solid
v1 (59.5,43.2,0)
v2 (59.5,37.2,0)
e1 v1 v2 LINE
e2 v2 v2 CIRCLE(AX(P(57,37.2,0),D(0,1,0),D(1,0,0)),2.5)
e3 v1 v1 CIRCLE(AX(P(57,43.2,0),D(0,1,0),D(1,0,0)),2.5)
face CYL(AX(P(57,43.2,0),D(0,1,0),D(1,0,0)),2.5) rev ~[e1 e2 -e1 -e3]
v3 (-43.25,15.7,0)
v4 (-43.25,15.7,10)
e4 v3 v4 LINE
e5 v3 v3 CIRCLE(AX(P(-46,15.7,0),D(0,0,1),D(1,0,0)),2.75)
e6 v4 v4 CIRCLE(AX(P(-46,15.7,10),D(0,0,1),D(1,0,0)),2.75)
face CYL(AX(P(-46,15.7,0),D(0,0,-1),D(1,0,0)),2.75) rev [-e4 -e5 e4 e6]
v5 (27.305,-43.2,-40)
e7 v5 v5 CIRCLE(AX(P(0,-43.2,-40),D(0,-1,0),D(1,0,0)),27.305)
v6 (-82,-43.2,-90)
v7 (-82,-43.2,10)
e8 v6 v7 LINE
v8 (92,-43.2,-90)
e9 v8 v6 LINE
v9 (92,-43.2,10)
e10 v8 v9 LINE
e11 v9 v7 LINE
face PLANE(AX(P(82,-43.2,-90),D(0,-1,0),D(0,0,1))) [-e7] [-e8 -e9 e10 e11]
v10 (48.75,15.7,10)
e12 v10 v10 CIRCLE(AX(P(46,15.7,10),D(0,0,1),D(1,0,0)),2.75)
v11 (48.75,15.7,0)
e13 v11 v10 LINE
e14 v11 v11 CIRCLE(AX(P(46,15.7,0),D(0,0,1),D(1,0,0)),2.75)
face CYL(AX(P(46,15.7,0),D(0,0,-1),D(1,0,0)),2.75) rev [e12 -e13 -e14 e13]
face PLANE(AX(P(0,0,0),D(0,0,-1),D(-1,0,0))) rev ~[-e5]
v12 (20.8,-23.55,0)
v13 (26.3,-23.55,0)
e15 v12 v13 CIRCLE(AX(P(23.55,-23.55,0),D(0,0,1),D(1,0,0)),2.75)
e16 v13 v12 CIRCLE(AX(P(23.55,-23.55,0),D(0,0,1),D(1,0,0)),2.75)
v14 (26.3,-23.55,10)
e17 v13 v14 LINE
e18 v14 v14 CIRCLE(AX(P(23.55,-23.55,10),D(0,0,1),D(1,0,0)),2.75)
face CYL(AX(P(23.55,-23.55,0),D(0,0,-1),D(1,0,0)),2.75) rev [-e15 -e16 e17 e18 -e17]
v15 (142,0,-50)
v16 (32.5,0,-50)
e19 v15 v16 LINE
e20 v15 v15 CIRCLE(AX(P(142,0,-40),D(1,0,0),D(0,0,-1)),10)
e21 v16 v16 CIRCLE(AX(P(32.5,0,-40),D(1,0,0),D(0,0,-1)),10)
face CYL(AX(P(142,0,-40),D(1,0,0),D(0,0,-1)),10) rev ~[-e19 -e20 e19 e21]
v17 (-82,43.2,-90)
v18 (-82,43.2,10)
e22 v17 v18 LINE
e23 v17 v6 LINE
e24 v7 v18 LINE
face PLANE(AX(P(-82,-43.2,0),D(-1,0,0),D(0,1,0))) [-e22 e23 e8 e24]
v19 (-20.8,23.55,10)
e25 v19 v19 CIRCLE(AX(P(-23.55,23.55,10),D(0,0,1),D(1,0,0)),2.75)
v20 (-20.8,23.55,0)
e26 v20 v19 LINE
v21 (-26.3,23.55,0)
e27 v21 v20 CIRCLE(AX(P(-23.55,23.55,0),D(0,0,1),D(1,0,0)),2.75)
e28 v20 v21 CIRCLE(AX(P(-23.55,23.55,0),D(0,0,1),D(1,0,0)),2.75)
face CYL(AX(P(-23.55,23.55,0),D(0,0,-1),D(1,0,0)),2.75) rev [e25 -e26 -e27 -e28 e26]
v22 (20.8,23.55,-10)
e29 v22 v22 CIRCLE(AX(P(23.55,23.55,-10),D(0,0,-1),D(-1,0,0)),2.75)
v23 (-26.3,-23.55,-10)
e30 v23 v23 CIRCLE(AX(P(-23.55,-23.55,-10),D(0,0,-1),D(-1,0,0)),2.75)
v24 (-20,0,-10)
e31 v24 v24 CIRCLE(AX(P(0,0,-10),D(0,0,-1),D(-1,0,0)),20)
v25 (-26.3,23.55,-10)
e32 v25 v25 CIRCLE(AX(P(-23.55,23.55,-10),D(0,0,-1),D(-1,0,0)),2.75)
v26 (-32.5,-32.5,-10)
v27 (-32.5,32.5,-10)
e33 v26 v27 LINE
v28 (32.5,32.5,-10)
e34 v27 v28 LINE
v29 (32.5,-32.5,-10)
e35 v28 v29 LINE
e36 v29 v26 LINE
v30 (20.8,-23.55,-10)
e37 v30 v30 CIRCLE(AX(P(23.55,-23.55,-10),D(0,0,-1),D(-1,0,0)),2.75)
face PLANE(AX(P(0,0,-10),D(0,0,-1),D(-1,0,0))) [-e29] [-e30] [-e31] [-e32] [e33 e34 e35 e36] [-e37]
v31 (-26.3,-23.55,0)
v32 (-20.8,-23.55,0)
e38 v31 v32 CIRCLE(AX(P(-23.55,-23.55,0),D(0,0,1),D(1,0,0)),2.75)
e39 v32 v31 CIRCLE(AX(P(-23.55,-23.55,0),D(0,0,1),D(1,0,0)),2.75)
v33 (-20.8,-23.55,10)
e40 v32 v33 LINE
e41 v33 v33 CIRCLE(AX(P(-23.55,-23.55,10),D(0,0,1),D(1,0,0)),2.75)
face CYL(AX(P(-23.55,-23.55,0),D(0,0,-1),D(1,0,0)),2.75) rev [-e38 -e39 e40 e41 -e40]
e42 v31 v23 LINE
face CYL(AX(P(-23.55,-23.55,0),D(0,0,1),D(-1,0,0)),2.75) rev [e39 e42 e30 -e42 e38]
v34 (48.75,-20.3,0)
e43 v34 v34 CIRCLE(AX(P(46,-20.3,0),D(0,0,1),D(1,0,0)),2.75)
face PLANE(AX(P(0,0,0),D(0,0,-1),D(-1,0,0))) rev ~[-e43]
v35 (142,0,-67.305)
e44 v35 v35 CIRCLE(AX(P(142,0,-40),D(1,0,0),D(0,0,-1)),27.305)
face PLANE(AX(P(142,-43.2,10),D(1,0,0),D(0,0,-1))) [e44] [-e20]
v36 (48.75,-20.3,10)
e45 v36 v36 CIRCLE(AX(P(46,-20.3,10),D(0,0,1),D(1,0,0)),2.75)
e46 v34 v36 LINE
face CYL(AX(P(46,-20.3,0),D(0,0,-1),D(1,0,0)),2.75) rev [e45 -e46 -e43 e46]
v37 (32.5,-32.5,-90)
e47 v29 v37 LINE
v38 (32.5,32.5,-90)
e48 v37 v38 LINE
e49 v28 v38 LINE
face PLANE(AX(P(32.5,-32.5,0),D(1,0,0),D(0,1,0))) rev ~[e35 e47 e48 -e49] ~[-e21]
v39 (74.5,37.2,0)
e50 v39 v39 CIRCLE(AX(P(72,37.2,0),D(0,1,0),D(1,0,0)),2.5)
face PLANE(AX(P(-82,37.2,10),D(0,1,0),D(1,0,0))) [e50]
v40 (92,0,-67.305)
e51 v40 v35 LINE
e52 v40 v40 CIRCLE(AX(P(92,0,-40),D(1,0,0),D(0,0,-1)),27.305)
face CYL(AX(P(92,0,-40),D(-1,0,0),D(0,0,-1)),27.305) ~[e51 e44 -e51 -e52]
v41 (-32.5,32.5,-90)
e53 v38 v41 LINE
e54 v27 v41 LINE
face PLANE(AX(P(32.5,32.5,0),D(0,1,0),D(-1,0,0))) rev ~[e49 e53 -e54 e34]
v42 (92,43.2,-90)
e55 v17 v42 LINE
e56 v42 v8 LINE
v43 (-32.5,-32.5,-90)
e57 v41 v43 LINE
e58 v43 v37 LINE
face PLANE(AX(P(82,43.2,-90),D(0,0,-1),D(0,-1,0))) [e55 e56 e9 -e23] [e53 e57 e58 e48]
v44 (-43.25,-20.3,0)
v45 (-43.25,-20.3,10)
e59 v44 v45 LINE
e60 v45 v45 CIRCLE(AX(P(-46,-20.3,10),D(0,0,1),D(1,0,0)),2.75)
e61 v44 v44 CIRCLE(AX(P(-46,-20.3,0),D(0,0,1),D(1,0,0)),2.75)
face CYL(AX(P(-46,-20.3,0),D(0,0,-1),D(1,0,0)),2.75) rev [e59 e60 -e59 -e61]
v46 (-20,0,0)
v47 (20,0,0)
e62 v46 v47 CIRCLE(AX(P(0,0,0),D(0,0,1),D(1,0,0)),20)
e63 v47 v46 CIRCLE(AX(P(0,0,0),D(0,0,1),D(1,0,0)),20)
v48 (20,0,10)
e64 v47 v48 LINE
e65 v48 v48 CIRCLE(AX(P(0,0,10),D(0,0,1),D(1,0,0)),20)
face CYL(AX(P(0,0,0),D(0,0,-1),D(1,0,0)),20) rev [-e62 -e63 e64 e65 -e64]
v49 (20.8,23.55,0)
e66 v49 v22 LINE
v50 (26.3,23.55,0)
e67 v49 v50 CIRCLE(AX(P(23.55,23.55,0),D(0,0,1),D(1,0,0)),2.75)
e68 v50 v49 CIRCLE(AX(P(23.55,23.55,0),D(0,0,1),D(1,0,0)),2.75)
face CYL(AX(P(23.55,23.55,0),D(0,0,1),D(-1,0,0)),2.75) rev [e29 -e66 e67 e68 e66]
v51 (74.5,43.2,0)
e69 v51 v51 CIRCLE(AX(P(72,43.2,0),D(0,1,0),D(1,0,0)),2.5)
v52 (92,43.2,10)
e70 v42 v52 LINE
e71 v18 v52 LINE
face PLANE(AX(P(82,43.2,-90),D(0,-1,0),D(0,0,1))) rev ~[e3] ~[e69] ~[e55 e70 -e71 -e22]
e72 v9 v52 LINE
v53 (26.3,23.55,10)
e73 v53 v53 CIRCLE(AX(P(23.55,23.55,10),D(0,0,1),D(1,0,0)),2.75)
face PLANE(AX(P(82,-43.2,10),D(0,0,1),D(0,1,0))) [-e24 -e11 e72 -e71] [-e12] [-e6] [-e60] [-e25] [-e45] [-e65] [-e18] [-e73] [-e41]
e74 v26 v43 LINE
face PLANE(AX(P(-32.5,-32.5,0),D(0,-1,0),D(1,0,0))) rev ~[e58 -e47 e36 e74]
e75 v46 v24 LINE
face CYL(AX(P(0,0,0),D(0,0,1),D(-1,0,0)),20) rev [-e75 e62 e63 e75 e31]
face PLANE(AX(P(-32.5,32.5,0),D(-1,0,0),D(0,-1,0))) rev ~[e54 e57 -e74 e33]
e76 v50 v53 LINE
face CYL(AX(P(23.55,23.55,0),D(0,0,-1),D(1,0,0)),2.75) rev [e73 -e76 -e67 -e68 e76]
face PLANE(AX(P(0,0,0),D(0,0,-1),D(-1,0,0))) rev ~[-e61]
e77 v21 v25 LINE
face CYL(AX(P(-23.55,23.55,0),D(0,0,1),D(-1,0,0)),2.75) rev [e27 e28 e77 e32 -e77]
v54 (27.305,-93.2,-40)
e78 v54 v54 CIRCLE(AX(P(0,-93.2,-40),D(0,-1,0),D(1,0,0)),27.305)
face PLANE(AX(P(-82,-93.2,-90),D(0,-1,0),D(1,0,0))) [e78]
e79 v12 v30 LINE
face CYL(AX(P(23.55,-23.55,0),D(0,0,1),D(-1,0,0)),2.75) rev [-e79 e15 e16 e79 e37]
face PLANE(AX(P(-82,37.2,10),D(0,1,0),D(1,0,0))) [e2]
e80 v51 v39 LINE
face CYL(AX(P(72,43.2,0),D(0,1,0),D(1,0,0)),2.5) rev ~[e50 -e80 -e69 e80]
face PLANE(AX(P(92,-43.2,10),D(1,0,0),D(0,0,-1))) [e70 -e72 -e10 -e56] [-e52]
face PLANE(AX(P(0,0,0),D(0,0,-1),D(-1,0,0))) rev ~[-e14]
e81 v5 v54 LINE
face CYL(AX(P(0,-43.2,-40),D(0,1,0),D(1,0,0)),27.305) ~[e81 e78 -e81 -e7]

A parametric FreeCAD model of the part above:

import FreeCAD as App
import Part
import Sketcher
from FreeCAD import Vector


def add_polygon(sketch, points):
    """Adds a closed chain of lines whose ends are joined by coincident constraints."""
    first, n = sketch.GeometryCount, len(points)
    for a, b in zip(points, points[1:] + points[:1]):
        sketch.addGeometry(Part.LineSegment(App.Vector(*a, 0), App.Vector(*b, 0)), False)
    for i in range(n):
        sketch.addConstraint(Sketcher.Constraint("Coincident", first + i, 2, first + (i + 1) % n, 1))

doc = App.newDocument("Part")
body = doc.addObject("PartDesign::Body", "Body")

sketch1 = body.newObject("Sketcher::SketchObject", "Sketch")
sketch1.AttachmentSupport = (doc.getObject("XY_Plane"), [""])
sketch1.MapMode = "FlatFace"
add_polygon(sketch1, [(82, 43.2), (-82, 43.2), (-82, -43.2), (82, -43.2)])
sketch1.addGeometry(Part.Circle(Vector(-23.6, -23.6, 0), Vector(0, 0, 1), 2.8), False)
sketch1.addGeometry(Part.Circle(Vector(-46, -20.3, 0), Vector(0, 0, 1), 2.8), False)
sketch1.addGeometry(Part.Circle(Vector(23.6, -23.6, 0), Vector(0, 0, 1), 2.8), False)
sketch1.addGeometry(Part.Circle(Vector(46, -20.3, 0), Vector(0, 0, 1), 2.8), False)
sketch1.addGeometry(Part.Circle(Vector(-46, 15.7, 0), Vector(0, 0, 1), 2.8), False)
sketch1.addGeometry(Part.Circle(Vector(-23.6, 23.6, 0), Vector(0, 0, 1), 2.8), False)
sketch1.addGeometry(Part.Circle(Vector(0, 0, 0), Vector(0, 0, 1), 20), False)
sketch1.addGeometry(Part.Circle(Vector(46, 15.7, 0), Vector(0, 0, 1), 2.8), False)
sketch1.addGeometry(Part.Circle(Vector(23.6, 23.6, 0), Vector(0, 0, 1), 2.8), False)
sketch1.addConstraint(Sketcher.Constraint("Horizontal", 0))
sketch1.addConstraint(Sketcher.Constraint("Vertical", 1))
sketch1.addConstraint(Sketcher.Constraint("Horizontal", 2))
sketch1.addConstraint(Sketcher.Constraint("Vertical", 3))
sketch1.addConstraint(Sketcher.Constraint("Coincident", 10, 3, -1, 1))
sketch1.addConstraint(Sketcher.Constraint("Equal", 4, 5))
sketch1.addConstraint(Sketcher.Constraint("Equal", 5, 6))
sketch1.addConstraint(Sketcher.Constraint("Equal", 6, 7))
sketch1.addConstraint(Sketcher.Constraint("Equal", 7, 8))
sketch1.addConstraint(Sketcher.Constraint("Equal", 8, 9))
sketch1.addConstraint(Sketcher.Constraint("Equal", 9, 11))
sketch1.addConstraint(Sketcher.Constraint("Equal", 11, 12))
sketch1.addConstraint(Sketcher.Constraint("Symmetric", 6, 3, 9, 3, -1, 1))
sketch1.addConstraint(Sketcher.Constraint("Symmetric", 4, 3, 12, 3, -1, 1))
sketch1.addConstraint(Sketcher.Constraint("Symmetric", 0, 2, 2, 2, -1, 1))
sketch1.addConstraint(Sketcher.Constraint("Symmetric", 4, 3, 6, 3, -2))
sketch1.addConstraint(Sketcher.Constraint("Symmetric", 5, 3, 7, 3, -2))
sketch1.addConstraint(Sketcher.Constraint("Symmetric", 8, 3, 11, 3, -2))
sketch1.addConstraint(Sketcher.Constraint("Vertical", 5, 3, 8, 3))
sketch1.addConstraint(Sketcher.Constraint("Diameter", 10, 40.0))
sketch1.addConstraint(Sketcher.Constraint("Diameter", 4, 5.5))
sketch1.addConstraint(Sketcher.Constraint("DistanceX", 5, 3, -1, 1, 46.0))
sketch1.addConstraint(Sketcher.Constraint("DistanceY", 5, 3, 8, 3, 36.0))
sketch1.addConstraint(Sketcher.Constraint("DistanceX", 0, 2, 8, 3, 36.0))
sketch1.addConstraint(Sketcher.Constraint("DistanceX", 4, 3, 6, 3, 47.1))
sketch1.addConstraint(Sketcher.Constraint("DistanceY", 4, 3, 9, 3, 47.1))
sketch1.addConstraint(Sketcher.Constraint("DistanceY", 1, 2, 1, 1, 86.4))
sketch1.addConstraint(Sketcher.Constraint("DistanceY", 5, 3, -1, 1, 20.3))
pad1 = body.newObject("PartDesign::Pad", "Pad")
pad1.Profile = sketch1
pad1.Length = 10

sketch2 = body.newObject("Sketcher::SketchObject", "Sketch001")
sketch2.AttachmentSupport = (doc.getObject("XY_Plane"), [""])
sketch2.MapMode = "FlatFace"
add_polygon(sketch2, [(82, 43), (82, -43), (-82, -43), (-82, 43)])
add_polygon(sketch2, [(-32, 32), (-32, -32), (32, -32), (32, 32)])
sketch2.addConstraint(Sketcher.Constraint("Vertical", 0))
sketch2.addConstraint(Sketcher.Constraint("Horizontal", 1))
sketch2.addConstraint(Sketcher.Constraint("Vertical", 2))
sketch2.addConstraint(Sketcher.Constraint("Horizontal", 3))
sketch2.addConstraint(Sketcher.Constraint("Vertical", 4))
sketch2.addConstraint(Sketcher.Constraint("Horizontal", 5))
sketch2.addConstraint(Sketcher.Constraint("Vertical", 6))
sketch2.addConstraint(Sketcher.Constraint("Horizontal", 7))
sketch2.addConstraint(Sketcher.Constraint("Symmetric", 0, 2, 2, 2, -1, 1))
sketch2.addConstraint(Sketcher.Constraint("Symmetric", 4, 2, 6, 2, -1, 1))
sketch2.addConstraint(Sketcher.Constraint("Equal", 7, 4))
sketch2.addConstraint(Sketcher.Constraint("DistanceX", 5, 1, 5, 2, 65.0))
sketch2.addConstraint(Sketcher.Constraint("DistanceX", 1, 2, 1, 1, 164.0))
sketch2.addConstraint(Sketcher.Constraint("DistanceY", 0, 2, 0, 1, 86.4))
pad2 = body.newObject("PartDesign::Pad", "Pad001")
pad2.Profile = sketch2
pad2.Length = 90
pad2.Reversed = True

sketch3 = body.newObject("Sketcher::SketchObject", "Sketch002")
sketch3.AttachmentSupport = (doc.getObject("XY_Plane"), [""])
sketch3.MapMode = "FlatFace"
add_polygon(sketch3, [(32.5, -32.5), (-32.5, -32.5), (-32.5, 32.5), (32.5, 32.5)])
sketch3.addGeometry(Part.Circle(Vector(23.6, -23.6, 0), Vector(0, 0, 1), 2.8), False)
sketch3.addGeometry(Part.Circle(Vector(-23.6, -23.6, 0), Vector(0, 0, 1), 2.8), False)
sketch3.addGeometry(Part.Circle(Vector(23.6, 23.6, 0), Vector(0, 0, 1), 2.8), False)
sketch3.addGeometry(Part.Circle(Vector(0, 0, 0), Vector(0, 0, 1), 20), False)
sketch3.addGeometry(Part.Circle(Vector(-23.6, 23.6, 0), Vector(0, 0, 1), 2.8), False)
sketch3.addConstraint(Sketcher.Constraint("Horizontal", 0))
sketch3.addConstraint(Sketcher.Constraint("Vertical", 1))
sketch3.addConstraint(Sketcher.Constraint("Horizontal", 2))
sketch3.addConstraint(Sketcher.Constraint("Vertical", 3))
sketch3.addConstraint(Sketcher.Constraint("Coincident", 7, 3, -1, 1))
sketch3.addConstraint(Sketcher.Constraint("Equal", 4, 5))
sketch3.addConstraint(Sketcher.Constraint("Equal", 5, 6))
sketch3.addConstraint(Sketcher.Constraint("Equal", 6, 8))
sketch3.addConstraint(Sketcher.Constraint("Symmetric", 5, 3, 6, 3, -1, 1))
sketch3.addConstraint(Sketcher.Constraint("Symmetric", 4, 3, 8, 3, -1, 1))
sketch3.addConstraint(Sketcher.Constraint("Symmetric", 0, 2, 2, 2, -1, 1))
sketch3.addConstraint(Sketcher.Constraint("Symmetric", 4, 3, 5, 3, -2))
sketch3.addConstraint(Sketcher.Constraint("Equal", 2, 1))
sketch3.addConstraint(Sketcher.Constraint("Diameter", 7, 40.0))
sketch3.addConstraint(Sketcher.Constraint("Diameter", 4, 5.5))
sketch3.addConstraint(Sketcher.Constraint("DistanceX", 0, 2, 0, 1, 65.0))
sketch3.addConstraint(Sketcher.Constraint("DistanceX", 5, 3, 4, 3, 47.1))
sketch3.addConstraint(Sketcher.Constraint("DistanceY", 4, 3, 6, 3, 47.1))
pad3 = body.newObject("PartDesign::Pad", "Pad002")
pad3.Profile = sketch3
pad3.Length = 10
pad3.Reversed = True

sketch4 = body.newObject("Sketcher::SketchObject", "Sketch003")
sketch4.AttachmentSupport = (doc.getObject("YZ_Plane"), [""])
sketch4.MapMode = "FlatFace"
sketch4.AttachmentOffset = App.Placement(Vector(0, 0, 82), App.Rotation())
add_polygon(sketch4, [(-43, -90), (43, -90), (43, 10), (-43, 10)])
sketch4.addConstraint(Sketcher.Constraint("Horizontal", 0))
sketch4.addConstraint(Sketcher.Constraint("Vertical", 1))
sketch4.addConstraint(Sketcher.Constraint("Horizontal", 2))
sketch4.addConstraint(Sketcher.Constraint("Vertical", 3))
sketch4.addConstraint(Sketcher.Constraint("DistanceY", 1, 1, 1, 2, 100.0))
sketch4.addConstraint(Sketcher.Constraint("DistanceX", 0, 1, 0, 2, 86.4))
sketch4.addConstraint(Sketcher.Constraint("DistanceY", 0, 2, -1, 1, 90.0))
sketch4.addConstraint(Sketcher.Constraint("DistanceX", -1, 1, 0, 2, 43.2))
pad4 = body.newObject("PartDesign::Pad", "Pad003")
pad4.Profile = sketch4
pad4.Length = 10

sketch5 = body.newObject("Sketcher::SketchObject", "Sketch004")
sketch5.AttachmentSupport = (doc.getObject("YZ_Plane"), [""])
sketch5.MapMode = "FlatFace"
sketch5.AttachmentOffset = App.Placement(Vector(0, 0, 92), App.Rotation())
sketch5.addGeometry(Part.Circle(Vector(0, -40, 0), Vector(0, 0, 1), 27), False)
sketch5.addConstraint(Sketcher.Constraint("PointOnObject", 0, 3, -2))
sketch5.addConstraint(Sketcher.Constraint("Diameter", 0, 54.61))
sketch5.addConstraint(Sketcher.Constraint("DistanceY", 0, 3, -1, 1, 40.0))
pad5 = body.newObject("PartDesign::Pad", "Pad004")
pad5.Profile = sketch5
pad5.Length = 50

sketch6 = body.newObject("Sketcher::SketchObject", "Sketch005")
sketch6.AttachmentSupport = (doc.getObject("XZ_Plane"), [""])
sketch6.MapMode = "FlatFace"
sketch6.AttachmentOffset = App.Placement(Vector(0, 0, 43.2), App.Rotation())
sketch6.addGeometry(Part.Circle(Vector(0, -40, 0), Vector(0, 0, 1), 27), False)
sketch6.addConstraint(Sketcher.Constraint("PointOnObject", 0, 3, -2))
sketch6.addConstraint(Sketcher.Constraint("Diameter", 0, 54.61))
sketch6.addConstraint(Sketcher.Constraint("DistanceY", 0, 3, -1, 1, 40.0))
pad6 = body.newObject("PartDesign::Pad", "Pad005")
pad6.Profile = sketch6
pad6.Length = 50

sketch7 = body.newObject("Sketcher::SketchObject", "Sketch006")
sketch7.AttachmentSupport = (doc.getObject("YZ_Plane"), [""])
sketch7.MapMode = "FlatFace"
sketch7.AttachmentOffset = App.Placement(Vector(0, 0, 142), App.Rotation())
sketch7.addGeometry(Part.Circle(Vector(0, -40, 0), Vector(0, 0, 1), 10), False)
sketch7.addConstraint(Sketcher.Constraint("PointOnObject", 0, 3, -2))
sketch7.addConstraint(Sketcher.Constraint("Diameter", 0, 20.0))
sketch7.addConstraint(Sketcher.Constraint("DistanceY", 0, 3, -1, 1, 40.0))
pocket1 = body.newObject("PartDesign::Pocket", "Pocket")
pocket1.Profile = sketch7
pocket1.Length = 109.5

sketch8 = body.newObject("Sketcher::SketchObject", "Sketch007")
sketch8.AttachmentSupport = (doc.getObject("XZ_Plane"), [""])
sketch8.MapMode = "FlatFace"
sketch8.AttachmentOffset = App.Placement(Vector(0, 0, -43.2), App.Rotation())
sketch8.addGeometry(Part.Circle(Vector(72, 0, 0), Vector(0, 0, 1), 2.5), False)
sketch8.addGeometry(Part.Circle(Vector(57, 0, 0), Vector(0, 0, 1), 2.5), False)
sketch8.addConstraint(Sketcher.Constraint("Equal", 0, 1))
sketch8.addConstraint(Sketcher.Constraint("PointOnObject", 0, 3, -1))
sketch8.addConstraint(Sketcher.Constraint("PointOnObject", 1, 3, -1))
sketch8.addConstraint(Sketcher.Constraint("Diameter", 0, 5.0))
sketch8.addConstraint(Sketcher.Constraint("DistanceX", 1, 3, 0, 3, 15.0))
sketch8.addConstraint(Sketcher.Constraint("DistanceX", -1, 1, 0, 3, 72.0))
pocket2 = body.newObject("PartDesign::Pocket", "Pocket001")
pocket2.Profile = sketch8
pocket2.Length = 6
pocket2.Reversed = True

doc.recompute()
